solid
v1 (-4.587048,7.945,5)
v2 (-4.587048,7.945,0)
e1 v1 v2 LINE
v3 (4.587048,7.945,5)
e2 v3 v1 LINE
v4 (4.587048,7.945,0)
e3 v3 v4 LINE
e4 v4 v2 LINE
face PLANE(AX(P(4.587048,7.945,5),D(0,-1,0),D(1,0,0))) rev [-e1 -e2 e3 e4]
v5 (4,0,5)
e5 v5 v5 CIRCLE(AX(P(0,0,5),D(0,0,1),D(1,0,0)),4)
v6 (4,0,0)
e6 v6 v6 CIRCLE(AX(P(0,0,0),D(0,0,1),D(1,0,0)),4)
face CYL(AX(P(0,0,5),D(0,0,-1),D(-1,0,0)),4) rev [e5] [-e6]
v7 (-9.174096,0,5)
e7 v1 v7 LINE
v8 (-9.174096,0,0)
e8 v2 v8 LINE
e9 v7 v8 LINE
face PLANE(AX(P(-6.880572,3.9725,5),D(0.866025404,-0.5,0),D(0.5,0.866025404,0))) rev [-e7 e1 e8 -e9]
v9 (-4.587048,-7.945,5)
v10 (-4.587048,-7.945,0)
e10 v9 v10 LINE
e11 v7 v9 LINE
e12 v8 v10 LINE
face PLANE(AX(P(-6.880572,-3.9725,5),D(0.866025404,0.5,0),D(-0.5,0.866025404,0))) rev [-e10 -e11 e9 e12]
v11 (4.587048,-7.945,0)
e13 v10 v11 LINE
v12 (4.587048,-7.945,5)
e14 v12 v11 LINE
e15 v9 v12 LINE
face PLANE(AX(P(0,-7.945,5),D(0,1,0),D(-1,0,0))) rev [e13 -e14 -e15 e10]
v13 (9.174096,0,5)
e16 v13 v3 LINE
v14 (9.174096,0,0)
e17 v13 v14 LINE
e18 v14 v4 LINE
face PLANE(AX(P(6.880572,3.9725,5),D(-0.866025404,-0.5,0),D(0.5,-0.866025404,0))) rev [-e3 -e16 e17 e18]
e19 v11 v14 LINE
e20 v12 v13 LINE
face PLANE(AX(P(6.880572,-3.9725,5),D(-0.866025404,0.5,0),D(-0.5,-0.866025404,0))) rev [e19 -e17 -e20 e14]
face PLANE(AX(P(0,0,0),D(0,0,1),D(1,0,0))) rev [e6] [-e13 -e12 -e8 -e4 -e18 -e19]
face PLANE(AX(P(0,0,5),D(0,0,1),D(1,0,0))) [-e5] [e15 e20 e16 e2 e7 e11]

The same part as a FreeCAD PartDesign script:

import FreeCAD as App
import Part
import Sketcher

V = App.Vector
Q = App.Units.Quantity

doc = App.newDocument("Part")
body = doc.addObject("PartDesign::Body", "Body")

# Sketch on XY plane
sketch1 = doc.addObject("Sketcher::SketchObject", "Sketch")
body.addObject(sketch1)
sketch1.AttachmentSupport = (doc.XY_Plane, [""])
sketch1.MapMode = "FlatFace"
sketch1.addGeometry([
    Part.LineSegment(V(-4.587048, 7.945, 0), V(-9.174096, 0, 0)),  # 0
    Part.LineSegment(V(-9.174096, 0, 0), V(-4.587048, -7.945, 0)),  # 1
    Part.LineSegment(V(-4.587048, -7.945, 0), V(4.587048, -7.945, 0)),  # 2
    Part.LineSegment(V(4.587048, -7.945, 0), V(9.174096, 0, 0)),  # 3
    Part.LineSegment(V(9.174096, 0, 0), V(4.587048, 7.945, 0)),  # 4
    Part.LineSegment(V(4.587048, 7.945, 0), V(-4.587048, 7.945, 0)),  # 5
    Part.Circle(V(0, 0, 0), V(0, 0, 1), 4),  # 6
], False)
sketch1.addConstraint([
    Sketcher.Constraint("Coincident", 0, 2, 1, 1),
    Sketcher.Constraint("Coincident", 1, 2, 2, 1),
    Sketcher.Constraint("Coincident", 2, 2, 3, 1),
    Sketcher.Constraint("Coincident", 3, 2, 4, 1),
    Sketcher.Constraint("Coincident", 4, 2, 5, 1),
    Sketcher.Constraint("Coincident", 5, 2, 0, 1),
    Sketcher.Constraint("Horizontal", 2),
    Sketcher.Constraint("Horizontal", 5),
    Sketcher.Constraint("Coincident", 6, 3, -1, 1),
    Sketcher.Constraint("Symmetric", 0, 2, 3, 2, -1, 1),
    Sketcher.Constraint("Symmetric", 1, 2, 4, 2, -1, 1),
    Sketcher.Constraint("PointOnObject", 0, 2, -1),
    Sketcher.Constraint("Parallel", 0, 3),
    Sketcher.Constraint("Vertical", 2, 2, 4, 2),
    Sketcher.Constraint("Diameter", 6, Q("8 mm")),
    Sketcher.Constraint("Angle", 0, Q("-120 deg")),
    Sketcher.Constraint("DistanceY", 2, 2, 4, 2, Q("15.89 mm")),
    Sketcher.Constraint("DistanceX", 2, 1, 2, 2, Q("9.174096 mm")),
])
pad1 = doc.addObject("PartDesign::Pad", "Pad")
body.addObject(pad1)
pad1.Profile = sketch1
pad1.Length = 5

doc.recompute()
